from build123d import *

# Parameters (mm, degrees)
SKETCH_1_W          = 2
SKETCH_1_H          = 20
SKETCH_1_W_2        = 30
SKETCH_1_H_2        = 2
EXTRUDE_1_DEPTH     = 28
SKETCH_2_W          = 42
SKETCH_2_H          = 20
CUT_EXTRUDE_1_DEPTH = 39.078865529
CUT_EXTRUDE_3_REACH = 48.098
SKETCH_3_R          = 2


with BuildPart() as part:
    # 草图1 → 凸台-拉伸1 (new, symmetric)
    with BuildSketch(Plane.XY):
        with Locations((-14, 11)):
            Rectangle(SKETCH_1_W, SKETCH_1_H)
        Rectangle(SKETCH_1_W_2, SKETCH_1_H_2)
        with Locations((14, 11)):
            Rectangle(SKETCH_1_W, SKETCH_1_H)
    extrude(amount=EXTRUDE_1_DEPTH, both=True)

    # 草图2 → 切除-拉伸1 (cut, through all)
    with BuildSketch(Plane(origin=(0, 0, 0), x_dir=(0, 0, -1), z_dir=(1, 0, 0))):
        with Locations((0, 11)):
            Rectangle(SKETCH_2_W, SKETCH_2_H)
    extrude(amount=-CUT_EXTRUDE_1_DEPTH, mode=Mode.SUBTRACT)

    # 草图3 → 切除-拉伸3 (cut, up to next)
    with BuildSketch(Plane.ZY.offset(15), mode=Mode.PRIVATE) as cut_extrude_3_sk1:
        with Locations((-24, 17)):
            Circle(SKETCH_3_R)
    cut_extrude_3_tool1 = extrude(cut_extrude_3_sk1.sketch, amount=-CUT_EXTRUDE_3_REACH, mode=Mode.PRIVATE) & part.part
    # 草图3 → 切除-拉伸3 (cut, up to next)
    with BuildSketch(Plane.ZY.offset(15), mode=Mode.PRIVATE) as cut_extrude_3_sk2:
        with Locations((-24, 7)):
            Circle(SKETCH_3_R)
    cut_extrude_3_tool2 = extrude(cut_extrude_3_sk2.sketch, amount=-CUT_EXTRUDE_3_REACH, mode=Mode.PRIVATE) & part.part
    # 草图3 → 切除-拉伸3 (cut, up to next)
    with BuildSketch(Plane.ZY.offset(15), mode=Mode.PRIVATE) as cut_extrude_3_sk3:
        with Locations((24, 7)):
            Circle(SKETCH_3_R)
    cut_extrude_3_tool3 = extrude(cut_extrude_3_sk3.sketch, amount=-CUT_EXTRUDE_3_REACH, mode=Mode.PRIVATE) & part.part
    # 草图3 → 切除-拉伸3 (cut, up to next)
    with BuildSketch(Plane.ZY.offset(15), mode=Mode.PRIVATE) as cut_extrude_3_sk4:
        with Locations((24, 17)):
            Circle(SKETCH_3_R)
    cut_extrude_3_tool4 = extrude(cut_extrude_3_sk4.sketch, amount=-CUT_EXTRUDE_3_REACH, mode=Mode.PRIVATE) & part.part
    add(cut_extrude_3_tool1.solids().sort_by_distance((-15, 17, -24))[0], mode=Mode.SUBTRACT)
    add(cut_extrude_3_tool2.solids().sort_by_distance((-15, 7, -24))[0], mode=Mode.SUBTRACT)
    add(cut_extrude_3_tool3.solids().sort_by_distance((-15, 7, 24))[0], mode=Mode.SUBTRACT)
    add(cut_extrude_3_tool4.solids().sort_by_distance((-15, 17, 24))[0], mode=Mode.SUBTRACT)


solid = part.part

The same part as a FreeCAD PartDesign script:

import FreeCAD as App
import Part
import Sketcher
from FreeCAD import Vector
Q = App.Units.Quantity

doc = App.newDocument("Part")
body = doc.addObject("PartDesign::Body", "Body")

# Sketch on XY plane
sketch1 = body.newObject("Sketcher::SketchObject", "Sketch")
sketch1.AttachmentSupport = (doc.getObject("XY_Plane"), [""])
sketch1.MapMode = "FlatFace"
sketch1.addGeometry([
    Part.LineSegment(Vector(-15, 21, 0), Vector(-15, -1, 0)),  # 0
    Part.LineSegment(Vector(-15, -1, 0), Vector(15, -1, 0)),  # 1
    Part.LineSegment(Vector(15, -1, 0), Vector(15, 21, 0)),  # 2
    Part.LineSegment(Vector(15, 21, 0), Vector(13, 21, 0)),  # 3
    Part.LineSegment(Vector(13, 21, 0), Vector(13, 1, 0)),  # 4
    Part.LineSegment(Vector(13, 1, 0), Vector(-13, 1, 0)),  # 5
    Part.LineSegment(Vector(-13, 1, 0), Vector(-13, 21, 0)),  # 6
    Part.LineSegment(Vector(-13, 21, 0), Vector(-15, 21, 0)),  # 7
], False)
sketch1.addConstraint([
    Sketcher.Constraint("Coincident", 0, 2, 1, 1),
    Sketcher.Constraint("Coincident", 1, 2, 2, 1),
    Sketcher.Constraint("Coincident", 2, 2, 3, 1),
    Sketcher.Constraint("Coincident", 3, 2, 4, 1),
    Sketcher.Constraint("Coincident", 4, 2, 5, 1),
    Sketcher.Constraint("Coincident", 5, 2, 6, 1),
    Sketcher.Constraint("Coincident", 6, 2, 7, 1),
    Sketcher.Constraint("Coincident", 7, 2, 0, 1),
    Sketcher.Constraint("Vertical", 0),
    Sketcher.Constraint("Horizontal", 1),
    Sketcher.Constraint("Vertical", 2),
    Sketcher.Constraint("Horizontal", 3),
    Sketcher.Constraint("Vertical", 4),
    Sketcher.Constraint("Horizontal", 5),
    Sketcher.Constraint("Vertical", 6),
    Sketcher.Constraint("Horizontal", 7),
    Sketcher.Constraint("Symmetric", 3, 2, 6, 2, -2),
    Sketcher.Constraint("Equal", 3, 7),
    Sketcher.Constraint("DistanceX", 1, 1, 1, 2, Q("30 mm")),
    Sketcher.Constraint("DistanceX", 3, 2, 3, 1, Q("2 mm")),
    Sketcher.Constraint("DistanceY", 0, 2, 0, 1, Q("22 mm")),
    Sketcher.Constraint("DistanceY", 4, 2, 4, 1, Q("20 mm")),
    Sketcher.Constraint("DistanceY", 0, 2, -1, 1, Q("1 mm")),
])
pad1 = body.newObject("PartDesign::Pad", "Pad")
pad1.Profile = sketch1
pad1.Length = 56
pad1.Midplane = True

# Sketch on YZ plane
sketch2 = body.newObject("Sketcher::SketchObject", "Sketch001")
sketch2.AttachmentSupport = (doc.getObject("YZ_Plane"), [""])
sketch2.MapMode = "FlatFace"
sketch2.addGeometry([
    Part.LineSegment(Vector(21, 21, 0), Vector(1, 21, 0)),
    Part.LineSegment(Vector(1, 21, 0), Vector(1, -21, 0)),
    Part.LineSegment(Vector(1, -21, 0), Vector(21, -21, 0)),
    Part.LineSegment(Vector(21, -21, 0), Vector(21, 21, 0)),
], False)
sketch2.addConstraint([
    Sketcher.Constraint("Coincident", 0, 2, 1, 1),
    Sketcher.Constraint("Coincident", 1, 2, 2, 1),
    Sketcher.Constraint("Coincident", 2, 2, 3, 1),
    Sketcher.Constraint("Coincident", 3, 2, 0, 1),
    Sketcher.Constraint("Horizontal", 0),
    Sketcher.Constraint("Vertical", 1),
    Sketcher.Constraint("Horizontal", 2),
    Sketcher.Constraint("Vertical", 3),
    Sketcher.Constraint("DistanceX", 0, 2, 0, 1, Q("20 mm")),
    Sketcher.Constraint("DistanceY", 1, 2, 1, 1, Q("42 mm")),
    Sketcher.Constraint("DistanceX", -1, 1, 0, 2, Q("1 mm")),
    Sketcher.Constraint("DistanceY", -1, 1, 0, 2, Q("21 mm")),
])
pocket1 = body.newObject("PartDesign::Pocket", "Pocket")
pocket1.Profile = sketch2
pocket1.Type = "ThroughAll"

# Sketch on YZ plane
sketch3 = body.newObject("Sketcher::SketchObject", "Sketch002")
sketch3.AttachmentSupport = (doc.getObject("YZ_Plane"), [""])
sketch3.MapMode = "FlatFace"
sketch3.AttachmentOffset = App.Placement(Vector(0, 0, -15), App.Rotation())
sketch3.addGeometry(Part.Circle(Vector(17, -24, 0), Vector(0, 0, 1), 2), False)
sketch3.addConstraint([
    Sketcher.Constraint("Diameter", 0, Q("4 mm")),
    Sketcher.Constraint("DistanceX", -1, 1, 0, 3, Q("17 mm")),
    Sketcher.Constraint("DistanceY", 0, 3, -1, 1, Q("24 mm")),
])
pocket2 = body.newObject("PartDesign::Pocket", "Pocket001")
pocket2.Profile = sketch3
pocket2.Type = "UpToFirst"
pocket2.Reversed = True

# Sketch on YZ plane
sketch4 = body.newObject("Sketcher::SketchObject", "Sketch003")
sketch4.AttachmentSupport = (doc.getObject("YZ_Plane"), [""])
sketch4.MapMode = "FlatFace"
sketch4.AttachmentOffset = App.Placement(Vector(0, 0, -15), App.Rotation())
sketch4.addGeometry(Part.Circle(Vector(7, -24, 0), Vector(0, 0, 1), 2), False)
sketch4.addConstraint([
    Sketcher.Constraint("Diameter", 0, Q("4 mm")),
    Sketcher.Constraint("DistanceX", -1, 1, 0, 3, Q("7 mm")),
    Sketcher.Constraint("DistanceY", 0, 3, -1, 1, Q("24 mm")),
])
pocket3 = body.newObject("PartDesign::Pocket", "Pocket002")
pocket3.Profile = sketch4
pocket3.Type = "UpToFirst"
pocket3.Reversed = True

# Sketch on YZ plane
sketch5 = body.newObject("Sketcher::SketchObject", "Sketch004")
sketch5.AttachmentSupport = (doc.getObject("YZ_Plane"), [""])
sketch5.MapMode = "FlatFace"
sketch5.AttachmentOffset = App.Placement(Vector(0, 0, -15), App.Rotation())
sketch5.addGeometry(Part.Circle(Vector(7, 24, 0), Vector(0, 0, 1), 2), False)
sketch5.addConstraint([
    Sketcher.Constraint("Diameter", 0, Q("4 mm")),
    Sketcher.Constraint("DistanceX", -1, 1, 0, 3, Q("7 mm")),
    Sketcher.Constraint("DistanceY", -1, 1, 0, 3, Q("24 mm")),
])
pocket4 = body.newObject("PartDesign::Pocket", "Pocket003")
pocket4.Profile = sketch5
pocket4.Type = "UpToFirst"
pocket4.Reversed = True

# Sketch on YZ plane
sketch6 = body.newObject("Sketcher::SketchObject", "Sketch005")
sketch6.AttachmentSupport = (doc.getObject("YZ_Plane"), [""])
sketch6.MapMode = "FlatFace"
sketch6.AttachmentOffset = App.Placement(Vector(0, 0, -15), App.Rotation())
sketch6.addGeometry(Part.Circle(Vector(17, 24, 0), Vector(0, 0, 1), 2), False)
sketch6.addConstraint([
    Sketcher.Constraint("Diameter", 0, Q("4 mm")),
    Sketcher.Constraint("DistanceX", -1, 1, 0, 3, Q("17 mm")),
    Sketcher.Constraint("DistanceY", -1, 1, 0, 3, Q("24 mm")),
])
pocket5 = body.newObject("PartDesign::Pocket", "Pocket004")
pocket5.Profile = sketch6
pocket5.Type = "UpToFirst"
pocket5.Reversed = True

doc.recompute()
